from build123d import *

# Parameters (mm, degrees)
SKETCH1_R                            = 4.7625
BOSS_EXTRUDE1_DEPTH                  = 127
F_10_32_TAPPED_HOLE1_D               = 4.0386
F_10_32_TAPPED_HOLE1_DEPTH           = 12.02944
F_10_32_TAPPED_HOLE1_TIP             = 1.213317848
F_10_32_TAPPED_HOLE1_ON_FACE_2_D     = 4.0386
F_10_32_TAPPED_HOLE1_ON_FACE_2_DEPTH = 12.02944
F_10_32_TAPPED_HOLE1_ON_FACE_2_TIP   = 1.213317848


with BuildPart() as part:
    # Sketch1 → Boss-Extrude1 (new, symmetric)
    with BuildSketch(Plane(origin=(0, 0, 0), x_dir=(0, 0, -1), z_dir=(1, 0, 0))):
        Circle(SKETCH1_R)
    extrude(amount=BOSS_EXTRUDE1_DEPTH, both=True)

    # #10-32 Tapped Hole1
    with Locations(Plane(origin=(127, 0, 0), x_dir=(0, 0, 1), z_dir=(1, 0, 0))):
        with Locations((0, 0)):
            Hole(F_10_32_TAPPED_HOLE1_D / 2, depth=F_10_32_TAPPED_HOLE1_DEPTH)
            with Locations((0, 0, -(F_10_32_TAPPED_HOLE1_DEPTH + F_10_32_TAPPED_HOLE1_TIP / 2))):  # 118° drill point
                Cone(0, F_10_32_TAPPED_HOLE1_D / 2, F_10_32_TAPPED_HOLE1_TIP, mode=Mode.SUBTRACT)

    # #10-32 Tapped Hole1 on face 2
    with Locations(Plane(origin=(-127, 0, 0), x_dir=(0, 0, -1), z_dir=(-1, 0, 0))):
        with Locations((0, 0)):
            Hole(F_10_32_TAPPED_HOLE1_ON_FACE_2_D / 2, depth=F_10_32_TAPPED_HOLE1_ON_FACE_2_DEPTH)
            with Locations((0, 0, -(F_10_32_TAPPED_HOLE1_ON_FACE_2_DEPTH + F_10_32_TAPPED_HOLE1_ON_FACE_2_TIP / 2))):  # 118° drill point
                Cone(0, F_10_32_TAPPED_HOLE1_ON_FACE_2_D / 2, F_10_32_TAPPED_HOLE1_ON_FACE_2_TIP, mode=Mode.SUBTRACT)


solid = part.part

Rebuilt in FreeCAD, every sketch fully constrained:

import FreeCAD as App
import Part
import Sketcher

V = App.Vector
Q = App.Units.Quantity

doc = App.newDocument("Part")
body = doc.addObject("PartDesign::Body", "Body")

sketch1 = doc.addObject("Sketcher::SketchObject", "Sketch")
body.addObject(sketch1)
sketch1.AttachmentSupport = (doc.YZ_Plane, [""])
sketch1.MapMode = "FlatFace"
sketch1.addGeometry(Part.Circle(V(0, 0, 0), V(0, 0, 1), 4.8), False)
sketch1.addConstraint(Sketcher.Constraint("Coincident", 0, 3, -1, 1))
sketch1.addConstraint(Sketcher.Constraint("Diameter", 0, Q("0.375 in")))
pad1 = doc.addObject("PartDesign::Pad", "Pad")
body.addObject(pad1)
pad1.Profile = sketch1
pad1.Length = Q("10 in")
pad1.Midplane = True

sketch2 = doc.addObject("Sketcher::SketchObject", "Sketch001")
body.addObject(sketch2)
sketch2.AttachmentSupport = (doc.YZ_Plane, [""])
sketch2.MapMode = "FlatFace"
sketch2.AttachmentOffset = App.Placement(V(0, 0, 5 * 25.4), App.Rotation())
sketch2.addGeometry(Part.Circle(V(0, 0, 0), V(0, 0, 1), 2), False)
sketch2.addConstraint(Sketcher.Constraint("Coincident", 0, 3, -1, 1))
sketch2.addConstraint(Sketcher.Constraint("Diameter", 0, Q("0.159 in")))
doc.recompute()
hole = doc.addObject("PartDesign::Hole", "Hole")
body.addObject(hole)
hole.Profile = sketch2
hole.ThreadType = "None"
hole.Diameter = Q("0.159 in")
hole.DepthType = "Dimension"
hole.Depth = Q("0.4736 in")
hole.DrillPoint = "Angled"
hole.DrillPointAngle = 118

sketch3 = doc.addObject("Sketcher::SketchObject", "Sketch002")
body.addObject(sketch3)
sketch3.AttachmentSupport = (doc.YZ_Plane, [""])
sketch3.MapMode = "FlatFace"
sketch3.AttachmentOffset = App.Placement(V(0, 0, -5 * 25.4), App.Rotation())
sketch3.addGeometry(Part.Circle(V(0, 0, 0), V(0, 0, 1), 2), False)
sketch3.addConstraint(Sketcher.Constraint("Coincident", 0, 3, -1, 1))
sketch3.addConstraint(Sketcher.Constraint("Diameter", 0, Q("0.159 in")))
doc.recompute()
hole2 = doc.addObject("PartDesign::Hole", "Hole001")
body.addObject(hole2)
hole2.Profile = sketch3
hole2.ThreadType = "None"
hole2.Diameter = Q("0.159 in")
hole2.DepthType = "Dimension"
hole2.Depth = Q("0.4736 in")
hole2.DrillPoint = "Angled"
hole2.DrillPointAngle = 118
hole2.Reversed = True

doc.recompute()
